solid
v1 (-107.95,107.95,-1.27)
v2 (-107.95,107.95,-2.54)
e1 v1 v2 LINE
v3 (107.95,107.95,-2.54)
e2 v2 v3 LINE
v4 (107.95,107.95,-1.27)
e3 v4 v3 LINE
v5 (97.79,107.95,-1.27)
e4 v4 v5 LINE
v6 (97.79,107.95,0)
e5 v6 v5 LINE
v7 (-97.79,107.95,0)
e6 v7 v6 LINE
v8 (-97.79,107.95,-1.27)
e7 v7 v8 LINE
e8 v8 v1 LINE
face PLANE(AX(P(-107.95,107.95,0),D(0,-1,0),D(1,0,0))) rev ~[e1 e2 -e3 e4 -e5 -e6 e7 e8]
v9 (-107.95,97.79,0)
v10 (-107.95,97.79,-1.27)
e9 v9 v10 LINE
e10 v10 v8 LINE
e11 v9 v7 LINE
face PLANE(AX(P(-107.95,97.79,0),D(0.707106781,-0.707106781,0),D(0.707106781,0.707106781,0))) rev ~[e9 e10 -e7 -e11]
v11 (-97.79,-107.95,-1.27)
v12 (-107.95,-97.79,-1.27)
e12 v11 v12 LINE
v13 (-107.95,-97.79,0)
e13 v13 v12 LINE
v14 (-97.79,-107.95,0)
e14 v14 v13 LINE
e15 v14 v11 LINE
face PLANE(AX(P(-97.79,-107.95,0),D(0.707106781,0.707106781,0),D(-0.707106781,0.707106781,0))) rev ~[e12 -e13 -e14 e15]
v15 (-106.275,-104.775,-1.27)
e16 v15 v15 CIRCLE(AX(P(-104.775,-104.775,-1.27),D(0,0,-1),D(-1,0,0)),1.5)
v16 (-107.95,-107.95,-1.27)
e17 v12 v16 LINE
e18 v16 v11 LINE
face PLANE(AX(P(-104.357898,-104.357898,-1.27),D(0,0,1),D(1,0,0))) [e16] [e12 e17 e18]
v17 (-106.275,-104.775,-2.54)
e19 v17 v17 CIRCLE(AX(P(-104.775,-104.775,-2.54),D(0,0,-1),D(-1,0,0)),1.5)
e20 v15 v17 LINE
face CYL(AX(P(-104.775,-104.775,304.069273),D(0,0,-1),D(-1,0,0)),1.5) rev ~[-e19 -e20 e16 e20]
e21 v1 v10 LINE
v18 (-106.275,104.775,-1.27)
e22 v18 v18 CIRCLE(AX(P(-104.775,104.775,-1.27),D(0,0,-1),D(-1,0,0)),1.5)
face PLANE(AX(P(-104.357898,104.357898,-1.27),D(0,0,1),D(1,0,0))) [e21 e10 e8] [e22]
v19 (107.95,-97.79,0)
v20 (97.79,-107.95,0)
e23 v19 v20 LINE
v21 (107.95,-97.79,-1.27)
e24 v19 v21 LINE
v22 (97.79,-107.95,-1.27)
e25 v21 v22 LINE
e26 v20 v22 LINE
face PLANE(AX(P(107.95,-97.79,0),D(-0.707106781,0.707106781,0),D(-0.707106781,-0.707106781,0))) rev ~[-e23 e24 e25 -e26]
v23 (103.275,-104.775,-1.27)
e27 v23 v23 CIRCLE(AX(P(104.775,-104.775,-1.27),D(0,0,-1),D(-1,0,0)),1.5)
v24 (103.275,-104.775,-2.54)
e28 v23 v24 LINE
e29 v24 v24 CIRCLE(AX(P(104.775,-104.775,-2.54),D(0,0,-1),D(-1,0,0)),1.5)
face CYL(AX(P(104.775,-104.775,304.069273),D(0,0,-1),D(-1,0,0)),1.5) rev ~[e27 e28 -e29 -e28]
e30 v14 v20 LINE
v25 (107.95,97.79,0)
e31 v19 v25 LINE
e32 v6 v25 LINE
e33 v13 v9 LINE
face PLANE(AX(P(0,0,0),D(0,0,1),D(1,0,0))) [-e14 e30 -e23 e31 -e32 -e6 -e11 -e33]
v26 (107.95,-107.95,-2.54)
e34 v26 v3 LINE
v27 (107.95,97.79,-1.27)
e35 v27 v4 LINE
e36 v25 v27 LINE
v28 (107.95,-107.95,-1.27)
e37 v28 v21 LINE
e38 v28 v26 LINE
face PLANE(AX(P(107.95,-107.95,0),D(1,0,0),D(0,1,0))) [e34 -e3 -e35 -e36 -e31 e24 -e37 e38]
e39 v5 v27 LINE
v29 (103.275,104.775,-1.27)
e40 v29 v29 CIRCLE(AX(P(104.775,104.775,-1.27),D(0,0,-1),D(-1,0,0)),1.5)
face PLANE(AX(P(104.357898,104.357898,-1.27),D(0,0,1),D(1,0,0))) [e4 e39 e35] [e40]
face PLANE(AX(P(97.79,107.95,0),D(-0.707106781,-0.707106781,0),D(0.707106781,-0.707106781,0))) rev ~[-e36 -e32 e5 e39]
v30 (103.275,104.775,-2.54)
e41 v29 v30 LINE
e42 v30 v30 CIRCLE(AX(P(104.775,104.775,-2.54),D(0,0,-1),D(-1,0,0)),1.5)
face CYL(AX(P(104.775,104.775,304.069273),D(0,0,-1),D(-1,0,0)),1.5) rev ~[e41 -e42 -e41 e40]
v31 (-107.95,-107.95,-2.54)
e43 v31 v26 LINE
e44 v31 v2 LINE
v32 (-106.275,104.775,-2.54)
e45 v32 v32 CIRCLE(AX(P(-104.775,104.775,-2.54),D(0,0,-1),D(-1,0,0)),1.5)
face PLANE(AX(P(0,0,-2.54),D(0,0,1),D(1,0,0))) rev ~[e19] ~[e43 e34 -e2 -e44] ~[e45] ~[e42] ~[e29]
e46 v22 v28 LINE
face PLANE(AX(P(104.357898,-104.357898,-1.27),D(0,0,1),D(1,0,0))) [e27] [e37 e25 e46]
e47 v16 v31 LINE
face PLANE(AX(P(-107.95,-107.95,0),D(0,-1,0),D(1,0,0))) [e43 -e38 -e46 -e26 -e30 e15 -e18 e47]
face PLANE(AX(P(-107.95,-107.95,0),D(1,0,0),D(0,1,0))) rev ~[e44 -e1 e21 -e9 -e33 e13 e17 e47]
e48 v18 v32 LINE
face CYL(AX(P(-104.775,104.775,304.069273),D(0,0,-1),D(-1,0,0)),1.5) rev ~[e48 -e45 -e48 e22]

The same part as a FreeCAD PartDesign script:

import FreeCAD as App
import Part
import Sketcher

V = App.Vector
Q = App.Units.Quantity

doc = App.newDocument("Part")
body = doc.addObject("PartDesign::Body", "Body")

# Sketch on XY plane
sketch1 = body.newObject("Sketcher::SketchObject", "Sketch")
sketch1.AttachmentSupport = (doc.getObject("XY_Plane"), [""])
sketch1.MapMode = "FlatFace"
sketch1.addGeometry([
    Part.LineSegment(V(-108, 108, 0), V(-108, -108, 0)),
    Part.LineSegment(V(-108, -108, 0), V(108, -108, 0)),
    Part.LineSegment(V(108, -108, 0), V(108, 108, 0)),
    Part.LineSegment(V(108, 108, 0), V(-108, 108, 0)),
], False)
sketch1.addConstraint([
    Sketcher.Constraint("Coincident", 0, 2, 1, 1),
    Sketcher.Constraint("Coincident", 1, 2, 2, 1),
    Sketcher.Constraint("Coincident", 2, 2, 3, 1),
    Sketcher.Constraint("Coincident", 3, 2, 0, 1),
    Sketcher.Constraint("Vertical", 0),
    Sketcher.Constraint("Horizontal", 1),
    Sketcher.Constraint("Vertical", 2),
    Sketcher.Constraint("Horizontal", 3),
    Sketcher.Constraint("Symmetric", 0, 2, 2, 2, -1, 1),
    Sketcher.Constraint("Equal", 3, 0),
    Sketcher.Constraint("DistanceX", 1, 1, 1, 2, Q("8.5 in")),
])
pad1 = body.newObject("PartDesign::Pad", "Pad")
pad1.Profile = sketch1
pad1.Length = Q("0.1 in")
pad1.Reversed = True

# Sketch on XY plane
sketch2 = body.newObject("Sketcher::SketchObject", "Sketch001")
sketch2.AttachmentSupport = (doc.getObject("XY_Plane"), [""])
sketch2.MapMode = "FlatFace"
sketch2.addGeometry([
    Part.LineSegment(V(-108, 108, 0), V(-108, 98, 0)),  # 0
    Part.LineSegment(V(-108, 98, 0), V(-98, 108, 0)),  # 1
    Part.LineSegment(V(-98, 108, 0), V(-108, 108, 0)),  # 2
    Part.LineSegment(V(108, 98, 0), V(108, 108, 0)),  # 3
    Part.LineSegment(V(108, 108, 0), V(98, 108, 0)),  # 4
    Part.LineSegment(V(98, 108, 0), V(108, 98, 0)),  # 5
    Part.LineSegment(V(98, -108, 0), V(108, -108, 0)),  # 6
    Part.LineSegment(V(108, -108, 0), V(108, -98, 0)),  # 7
    Part.LineSegment(V(108, -98, 0), V(98, -108, 0)),  # 8
    Part.LineSegment(V(-98, -108, 0), V(-108, -98, 0)),  # 9
    Part.LineSegment(V(-108, -98, 0), V(-108, -108, 0)),  # 10
    Part.LineSegment(V(-108, -108, 0), V(-98, -108, 0)),  # 11
], False)
sketch2.addConstraint([
    Sketcher.Constraint("Coincident", 0, 2, 1, 1),
    Sketcher.Constraint("Coincident", 1, 2, 2, 1),
    Sketcher.Constraint("Coincident", 2, 2, 0, 1),
    Sketcher.Constraint("Coincident", 3, 2, 4, 1),
    Sketcher.Constraint("Coincident", 4, 2, 5, 1),
    Sketcher.Constraint("Coincident", 5, 2, 3, 1),
    Sketcher.Constraint("Coincident", 6, 2, 7, 1),
    Sketcher.Constraint("Coincident", 7, 2, 8, 1),
    Sketcher.Constraint("Coincident", 8, 2, 6, 1),
    Sketcher.Constraint("Coincident", 9, 2, 10, 1),
    Sketcher.Constraint("Coincident", 10, 2, 11, 1),
    Sketcher.Constraint("Coincident", 11, 2, 9, 1),
    Sketcher.Constraint("Vertical", 0),
    Sketcher.Constraint("Horizontal", 2),
    Sketcher.Constraint("Vertical", 3),
    Sketcher.Constraint("Horizontal", 4),
    Sketcher.Constraint("Horizontal", 6),
    Sketcher.Constraint("Vertical", 7),
    Sketcher.Constraint("Vertical", 10),
    Sketcher.Constraint("Horizontal", 11),
    Sketcher.Constraint("Symmetric", 2, 2, 6, 2, -1, 1),
    Sketcher.Constraint("Symmetric", 5, 2, 9, 2, -1, 1),
    Sketcher.Constraint("Symmetric", 4, 2, 11, 2, -1, 1),
    Sketcher.Constraint("Symmetric", 2, 2, 3, 2, -2),
    Sketcher.Constraint("Perpendicular", 1, 5),
    Sketcher.Constraint("Perpendicular", 5, 8),
    Sketcher.Constraint("Horizontal", 0, 2, 5, 2),
    Sketcher.Constraint("Horizontal", 7, 2, 9, 2),
    Sketcher.Constraint("Vertical", 4, 2, 8, 2),
    Sketcher.Constraint("DistanceX", 2, 2, 2, 1, Q("0.4 in")),
    Sketcher.Constraint("DistanceX", 1, 2, 3, 2, Q("8.1 in")),
    Sketcher.Constraint("DistanceY", 6, 2, 5, 2, Q("8.1 in")),
])
pocket1 = body.newObject("PartDesign::Pocket", "Pocket")
pocket1.Profile = sketch2
pocket1.Length = Q("0.05 in")

# Sketch on XY plane
sketch3 = body.newObject("Sketcher::SketchObject", "Sketch002")
sketch3.AttachmentSupport = (doc.getObject("XY_Plane"), [""])
sketch3.MapMode = "FlatFace"
sketch3.AttachmentOffset = App.Placement(V(0, 0, -0.05 * 25.4), App.Rotation())
sketch3.addGeometry([
    Part.Circle(V(104.8, -104.8, 0), V(0, 0, 1), 1.5),
    Part.Circle(V(-104.8, -104.8, 0), V(0, 0, 1), 1.5),
    Part.Circle(V(-104.8, 104.8, 0), V(0, 0, 1), 1.5),
    Part.Circle(V(104.8, 104.8, 0), V(0, 0, 1), 1.5),
], False)
sketch3.addConstraint([
    Sketcher.Constraint("Equal", 0, 1),
    Sketcher.Constraint("Equal", 1, 2),
    Sketcher.Constraint("Equal", 2, 3),
    Sketcher.Constraint("Symmetric", 0, 3, 2, 3, -1, 1),
    Sketcher.Constraint("Symmetric", 1, 3, 3, 3, -1, 1),
    Sketcher.Constraint("Symmetric", 0, 3, 1, 3, -2),
    Sketcher.Constraint("Diameter", 0, 3.0),
    Sketcher.Constraint("DistanceX", 1, 3, 0, 3, Q("8.25 in")),
    Sketcher.Constraint("DistanceY", 1, 3, 2, 3, Q("8.25 in")),
])
doc.recompute()
hole = body.newObject("PartDesign::Hole", "Hole")
hole.Profile = sketch3
hole.ThreadType = "None"
hole.Diameter = 3
hole.DepthType = "ThroughAll"

doc.recompute()
